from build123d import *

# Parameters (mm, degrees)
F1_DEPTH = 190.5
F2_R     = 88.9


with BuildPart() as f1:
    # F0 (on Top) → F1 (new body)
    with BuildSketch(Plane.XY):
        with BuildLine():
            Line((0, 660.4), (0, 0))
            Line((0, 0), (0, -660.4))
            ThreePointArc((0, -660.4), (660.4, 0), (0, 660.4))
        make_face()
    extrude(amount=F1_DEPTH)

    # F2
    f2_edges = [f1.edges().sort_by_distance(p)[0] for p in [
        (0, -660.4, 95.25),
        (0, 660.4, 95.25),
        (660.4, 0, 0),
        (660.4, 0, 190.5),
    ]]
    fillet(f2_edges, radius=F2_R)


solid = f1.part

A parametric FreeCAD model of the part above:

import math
import FreeCAD as App
import Part
import Sketcher
Q = App.Units.Quantity


def edges_at(feature, points):
    """Names of the edges that pass closest to the given points."""
    edges = feature.Shape.Edges
    near = lambda p: min(range(len(edges)), key=lambda i: edges[i].distToShape(Part.Vertex(*p))[0])
    return sorted({f"Edge{near(p) + 1}" for p in points})

doc = App.newDocument("Part")
body = doc.addObject("PartDesign::Body", "Body")

sketch1 = body.newObject("Sketcher::SketchObject", "Sketch")
sketch1.AttachmentSupport = (doc.getObject("XY_Plane"), [""])
sketch1.MapMode = "FlatFace"
sketch1.addGeometry([
    Part.LineSegment(App.Vector(0, 660, 0), App.Vector(0, -660, 0)),
    Part.ArcOfCircle(Part.Circle(App.Vector(0, 0, 0), App.Vector(0, 0, 1), 660), math.radians(-90), math.radians(90)),
], False)
sketch1.addConstraint([
    Sketcher.Constraint("Coincident", 0, 1, 1, 2),
    Sketcher.Constraint("Coincident", 1, 1, 0, 2),
    Sketcher.Constraint("Vertical", 0),
    Sketcher.Constraint("Coincident", 1, 3, -1, 1),
    Sketcher.Constraint("PointOnObject", 0, 1, -2),
    Sketcher.Constraint("Radius", 1, Q("26 in")),
])
pad1 = body.newObject("PartDesign::Pad", "Pad")
pad1.Profile = sketch1
pad1.Length = Q("7.5 in")
doc.recompute()

fillet = body.newObject("PartDesign::Fillet", "Fillet")
fillet.Base = (pad1, edges_at(pad1, [
    (0, -660.4, 95.25),
    (0, 660.4, 95.25),
    (660.4, 0, 0),
    (660.4, 0, 190.5),
]))
fillet.Radius = Q("3.5 in")

doc.recompute()
